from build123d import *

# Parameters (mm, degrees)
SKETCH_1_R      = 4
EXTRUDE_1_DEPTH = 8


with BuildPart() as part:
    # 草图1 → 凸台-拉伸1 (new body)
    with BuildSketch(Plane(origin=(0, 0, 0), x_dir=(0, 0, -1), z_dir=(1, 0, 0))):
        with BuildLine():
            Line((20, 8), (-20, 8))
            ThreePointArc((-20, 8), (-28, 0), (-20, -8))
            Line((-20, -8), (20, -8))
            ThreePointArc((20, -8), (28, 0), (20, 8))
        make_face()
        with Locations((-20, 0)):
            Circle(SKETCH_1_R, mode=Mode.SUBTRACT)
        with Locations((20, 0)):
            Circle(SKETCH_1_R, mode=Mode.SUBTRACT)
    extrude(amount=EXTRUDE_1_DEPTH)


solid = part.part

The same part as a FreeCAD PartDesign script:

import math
import FreeCAD as App
import Part
import Sketcher
from FreeCAD import Vector
Q = App.Units.Quantity

doc = App.newDocument("Part")
body = doc.addObject("PartDesign::Body", "Body")

# Sketch on YZ plane
sketch1 = doc.addObject("Sketcher::SketchObject", "Sketch")
body.addObject(sketch1)
sketch1.AttachmentSupport = (doc.YZ_Plane, [""])
sketch1.MapMode = "FlatFace"
sketch1.addGeometry([
    Part.LineSegment(Vector(8, -20, 0), Vector(8, 20, 0)),  # 0
    Part.ArcOfCircle(Part.Circle(Vector(0, 20, 0), Vector(0, 0, 1), 8), math.radians(0), math.radians(180)),  # 1
    Part.LineSegment(Vector(-8, 20, 0), Vector(-8, -20, 0)),  # 2
    Part.ArcOfCircle(Part.Circle(Vector(0, -20, 0), Vector(0, 0, 1), 8), math.radians(180), math.radians(360)),  # 3
    Part.Circle(Vector(0, 20, 0), Vector(0, 0, 1), 4),  # 4
    Part.Circle(Vector(0, -20, 0), Vector(0, 0, 1), 4),  # 5
], False)
sketch1.addConstraint([
    Sketcher.Constraint("Tangent", 0, 2, 1, 1),
    Sketcher.Constraint("Tangent", 1, 2, 2, 1),
    Sketcher.Constraint("Tangent", 2, 2, 3, 1),
    Sketcher.Constraint("Tangent", 3, 2, 0, 1),
    Sketcher.Constraint("Vertical", 0),
    Sketcher.Constraint("Vertical", 2),
    Sketcher.Constraint("Coincident", 4, 3, 1, 3),
    Sketcher.Constraint("Coincident", 5, 3, 3, 3),
    Sketcher.Constraint("Equal", 4, 5),
    Sketcher.Constraint("Symmetric", 1, 3, 3, 3, -1, 1),
    Sketcher.Constraint("Diameter", 4, Q("8 mm")),
    Sketcher.Constraint("Radius", 1, Q("8 mm")),
    Sketcher.Constraint("DistanceY", 0, 1, 0, 2, Q("40 mm")),
])
pad1 = doc.addObject("PartDesign::Pad", "Pad")
body.addObject(pad1)
pad1.Profile = sketch1
pad1.Length = 8

doc.recompute()
